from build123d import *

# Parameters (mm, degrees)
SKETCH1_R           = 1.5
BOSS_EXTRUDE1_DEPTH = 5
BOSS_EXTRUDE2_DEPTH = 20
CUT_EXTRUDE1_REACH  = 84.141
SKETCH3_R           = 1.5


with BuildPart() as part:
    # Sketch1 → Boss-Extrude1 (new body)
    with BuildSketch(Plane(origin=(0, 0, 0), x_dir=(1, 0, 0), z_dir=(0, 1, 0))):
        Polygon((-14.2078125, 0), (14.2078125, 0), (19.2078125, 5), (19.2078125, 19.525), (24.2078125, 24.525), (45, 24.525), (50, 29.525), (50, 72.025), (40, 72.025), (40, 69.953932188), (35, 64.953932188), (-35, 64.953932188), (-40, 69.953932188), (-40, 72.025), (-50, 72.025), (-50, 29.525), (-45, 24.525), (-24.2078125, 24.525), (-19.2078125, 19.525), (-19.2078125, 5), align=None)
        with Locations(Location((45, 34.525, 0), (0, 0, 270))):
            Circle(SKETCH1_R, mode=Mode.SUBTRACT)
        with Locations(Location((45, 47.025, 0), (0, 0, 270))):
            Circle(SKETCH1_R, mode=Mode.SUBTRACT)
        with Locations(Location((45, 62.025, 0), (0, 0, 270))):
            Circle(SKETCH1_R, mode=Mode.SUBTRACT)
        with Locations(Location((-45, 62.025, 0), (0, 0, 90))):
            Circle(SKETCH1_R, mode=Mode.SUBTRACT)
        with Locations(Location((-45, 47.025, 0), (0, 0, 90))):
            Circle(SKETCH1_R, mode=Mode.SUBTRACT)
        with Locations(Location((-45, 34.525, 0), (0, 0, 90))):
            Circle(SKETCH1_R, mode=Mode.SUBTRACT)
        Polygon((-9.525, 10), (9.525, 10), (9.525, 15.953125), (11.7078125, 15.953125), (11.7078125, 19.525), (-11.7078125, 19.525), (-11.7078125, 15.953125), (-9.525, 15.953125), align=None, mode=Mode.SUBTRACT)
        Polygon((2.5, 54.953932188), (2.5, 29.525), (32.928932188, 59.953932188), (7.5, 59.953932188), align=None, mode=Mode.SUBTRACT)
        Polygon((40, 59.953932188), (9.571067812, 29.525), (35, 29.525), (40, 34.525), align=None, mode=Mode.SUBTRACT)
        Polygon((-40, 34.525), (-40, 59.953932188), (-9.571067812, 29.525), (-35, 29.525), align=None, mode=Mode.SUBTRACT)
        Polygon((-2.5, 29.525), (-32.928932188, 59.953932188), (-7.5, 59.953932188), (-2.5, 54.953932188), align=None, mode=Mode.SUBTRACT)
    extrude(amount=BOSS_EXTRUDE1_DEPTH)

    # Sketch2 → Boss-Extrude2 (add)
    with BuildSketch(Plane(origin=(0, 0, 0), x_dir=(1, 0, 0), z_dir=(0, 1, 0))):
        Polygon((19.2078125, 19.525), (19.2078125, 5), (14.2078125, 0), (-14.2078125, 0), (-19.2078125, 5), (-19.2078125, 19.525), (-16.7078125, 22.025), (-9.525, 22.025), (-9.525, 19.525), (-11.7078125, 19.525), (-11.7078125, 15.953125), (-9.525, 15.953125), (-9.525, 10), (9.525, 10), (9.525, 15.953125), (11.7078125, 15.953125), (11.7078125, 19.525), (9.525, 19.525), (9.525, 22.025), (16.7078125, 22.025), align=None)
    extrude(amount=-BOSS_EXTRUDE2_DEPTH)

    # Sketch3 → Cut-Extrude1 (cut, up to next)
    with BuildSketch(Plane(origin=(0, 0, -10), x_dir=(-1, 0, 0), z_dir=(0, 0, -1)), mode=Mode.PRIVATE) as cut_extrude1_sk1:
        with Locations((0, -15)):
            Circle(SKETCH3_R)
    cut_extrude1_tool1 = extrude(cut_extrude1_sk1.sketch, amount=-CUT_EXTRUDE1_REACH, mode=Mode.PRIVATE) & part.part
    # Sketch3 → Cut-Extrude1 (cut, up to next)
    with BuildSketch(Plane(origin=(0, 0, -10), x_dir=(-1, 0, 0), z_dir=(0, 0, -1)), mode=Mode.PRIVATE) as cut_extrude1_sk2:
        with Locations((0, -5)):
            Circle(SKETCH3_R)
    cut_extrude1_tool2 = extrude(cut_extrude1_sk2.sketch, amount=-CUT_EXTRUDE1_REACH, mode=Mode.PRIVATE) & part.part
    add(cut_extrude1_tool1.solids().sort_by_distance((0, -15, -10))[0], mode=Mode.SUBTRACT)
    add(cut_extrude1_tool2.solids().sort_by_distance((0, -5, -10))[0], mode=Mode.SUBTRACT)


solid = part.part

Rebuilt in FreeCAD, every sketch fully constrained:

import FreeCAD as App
import Part
import Sketcher


def add_polygon(sketch, points):
    """Adds a closed chain of lines whose ends are joined by coincident constraints."""
    first, n = sketch.GeometryCount, len(points)
    for a, b in zip(points, points[1:] + points[:1]):
        sketch.addGeometry(Part.LineSegment(App.Vector(*a, 0), App.Vector(*b, 0)), False)
    for i in range(n):
        sketch.addConstraint(Sketcher.Constraint("Coincident", first + i, 2, first + (i + 1) % n, 1))

doc = App.newDocument("Part")
body = doc.addObject("PartDesign::Body", "Body")

sketch1 = body.newObject("Sketcher::SketchObject", "Sketch")
sketch1.AttachmentSupport = (doc.getObject("XZ_Plane"), [""])
sketch1.MapMode = "FlatFace"
add_polygon(sketch1, [(-14.2, 0), (14.2, 0), (19.2, -5), (19.2, -19.5), (24.2, -24.5), (45, -24.5), (50, -29.5), (50, -72), (40, -72), (40, -70), (35, -65), (-35, -65), (-40, -70), (-40, -72), (-50, -72), (-50, -29.5), (-45, -24.5), (-24.2, -24.5), (-19.2, -19.5), (-19.2, -5)])
sketch1.addGeometry(Part.Circle(App.Vector(-45, -34.5, 0), App.Vector(0, 0, 1), 1.5), False)
add_polygon(sketch1, [(9.5, -10), (-9.5, -10), (-9.5, -16), (-11.7, -16), (-11.7, -19.5), (11.7, -19.5), (11.7, -16), (9.5, -16)])
sketch1.addGeometry(Part.Circle(App.Vector(45, -34.5, 0), App.Vector(0, 0, 1), 1.5), False)
sketch1.addGeometry(Part.Circle(App.Vector(-45, -47, 0), App.Vector(0, 0, 1), 1.5), False)
add_polygon(sketch1, [(-35, -29.5), (-40, -34.5), (-40, -60), (-9.6, -29.5)])
add_polygon(sketch1, [(-2.5, -55), (-2.5, -29.5), (-32.9, -60), (-7.5, -60)])
sketch1.addGeometry(Part.Circle(App.Vector(-45, -62, 0), App.Vector(0, 0, 1), 1.5), False)
add_polygon(sketch1, [(2.5, -29.5), (2.5, -55), (7.5, -60), (32.9, -60)])
add_polygon(sketch1, [(9.6, -29.5), (40, -60), (40, -34.5), (35, -29.5)])
sketch1.addGeometry(Part.Circle(App.Vector(45, -47, 0), App.Vector(0, 0, 1), 1.5), False)
sketch1.addGeometry(Part.Circle(App.Vector(45, -62, 0), App.Vector(0, 0, 1), 1.5), False)
sketch1.addConstraint(Sketcher.Constraint("Horizontal", 0))
sketch1.addConstraint(Sketcher.Constraint("Vertical", 2))
sketch1.addConstraint(Sketcher.Constraint("Horizontal", 4))
sketch1.addConstraint(Sketcher.Constraint("Vertical", 6))
sketch1.addConstraint(Sketcher.Constraint("Horizontal", 7))
sketch1.addConstraint(Sketcher.Constraint("Vertical", 8))
sketch1.addConstraint(Sketcher.Constraint("Horizontal", 10))
sketch1.addConstraint(Sketcher.Constraint("Vertical", 12))
sketch1.addConstraint(Sketcher.Constraint("Horizontal", 13))
sketch1.addConstraint(Sketcher.Constraint("Vertical", 14))
sketch1.addConstraint(Sketcher.Constraint("Horizontal", 16))
sketch1.addConstraint(Sketcher.Constraint("Vertical", 18))
sketch1.addConstraint(Sketcher.Constraint("Horizontal", 21))
sketch1.addConstraint(Sketcher.Constraint("Vertical", 22))
sketch1.addConstraint(Sketcher.Constraint("Horizontal", 23))
sketch1.addConstraint(Sketcher.Constraint("Vertical", 24))
sketch1.addConstraint(Sketcher.Constraint("Horizontal", 25))
sketch1.addConstraint(Sketcher.Constraint("Vertical", 26))
sketch1.addConstraint(Sketcher.Constraint("Horizontal", 27))
sketch1.addConstraint(Sketcher.Constraint("Vertical", 28))
sketch1.addConstraint(Sketcher.Constraint("Vertical", 32))
sketch1.addConstraint(Sketcher.Constraint("Horizontal", 34))
sketch1.addConstraint(Sketcher.Constraint("Vertical", 35))
sketch1.addConstraint(Sketcher.Constraint("Horizontal", 37))
sketch1.addConstraint(Sketcher.Constraint("Vertical", 40))
sketch1.addConstraint(Sketcher.Constraint("Horizontal", 42))
sketch1.addConstraint(Sketcher.Constraint("Vertical", 45))
sketch1.addConstraint(Sketcher.Constraint("Horizontal", 47))
sketch1.addConstraint(Sketcher.Constraint("Equal", 20, 29))
sketch1.addConstraint(Sketcher.Constraint("Equal", 29, 30))
sketch1.addConstraint(Sketcher.Constraint("Equal", 30, 39))
sketch1.addConstraint(Sketcher.Constraint("Equal", 39, 48))
sketch1.addConstraint(Sketcher.Constraint("Equal", 48, 49))
sketch1.addConstraint(Sketcher.Constraint("Symmetric", 0, 2, 19, 2, -1, 1))
sketch1.addConstraint(Sketcher.Constraint("Symmetric", 20, 3, 29, 3, -2))
sketch1.addConstraint(Sketcher.Constraint("Symmetric", 30, 3, 48, 3, -2))
sketch1.addConstraint(Sketcher.Constraint("Symmetric", 39, 3, 49, 3, -2))
sketch1.addConstraint(Sketcher.Constraint("Symmetric", 8, 2, 11, 2, -2))
sketch1.addConstraint(Sketcher.Constraint("Symmetric", 6, 2, 13, 2, -2))
sketch1.addConstraint(Sketcher.Constraint("Symmetric", 4, 2, 15, 2, -2))
sketch1.addConstraint(Sketcher.Constraint("Symmetric", 2, 2, 17, 2, -2))
sketch1.addConstraint(Sketcher.Constraint("Symmetric", 23, 2, 26, 2, -2))
sketch1.addConstraint(Sketcher.Constraint("Symmetric", 38, 2, 40, 2, -2))
sketch1.addConstraint(Sketcher.Constraint("Symmetric", 37, 2, 41, 2, -2))
sketch1.addConstraint(Sketcher.Constraint("Symmetric", 32, 2, 44, 2, -2))
sketch1.addConstraint(Sketcher.Constraint("Symmetric", 34, 2, 46, 2, -2))
sketch1.addConstraint(Sketcher.Constraint("Parallel", 1, 3))
sketch1.addConstraint(Sketcher.Constraint("Parallel", 3, 5))
sketch1.addConstraint(Sketcher.Constraint("Parallel", 5, 9))
sketch1.addConstraint(Sketcher.Constraint("Perpendicular", 9, 11))
sketch1.addConstraint(Sketcher.Constraint("Parallel", 11, 15))
sketch1.addConstraint(Sketcher.Constraint("Parallel", 15, 17))
sketch1.addConstraint(Sketcher.Constraint("Parallel", 17, 19))
sketch1.addConstraint(Sketcher.Constraint("Parallel", 19, 31))
sketch1.addConstraint(Sketcher.Constraint("Parallel", 31, 33))
sketch1.addConstraint(Sketcher.Constraint("Parallel", 33, 36))
sketch1.addConstraint(Sketcher.Constraint("Parallel", 36, 38))
sketch1.addConstraint(Sketcher.Constraint("Perpendicular", 38, 41))
sketch1.addConstraint(Sketcher.Constraint("Parallel", 41, 43))
sketch1.addConstraint(Sketcher.Constraint("Parallel", 43, 44))
sketch1.addConstraint(Sketcher.Constraint("Parallel", 44, 46))
sketch1.addConstraint(Sketcher.Constraint("Horizontal", 17, 2, 24, 2))
sketch1.addConstraint(Sketcher.Constraint("Horizontal", 29, 3, 31, 2))
sketch1.addConstraint(Sketcher.Constraint("Horizontal", 14, 2, 33, 2))
sketch1.addConstraint(Sketcher.Constraint("Horizontal", 34, 2, 35, 2))
sketch1.addConstraint(Sketcher.Constraint("Horizontal", 32, 2, 36, 2))
sketch1.addConstraint(Sketcher.Constraint("Horizontal", 35, 2, 43, 2))
sketch1.addConstraint(Sketcher.Constraint("Vertical", 20, 3, 30, 3))
sketch1.addConstraint(Sketcher.Constraint("Vertical", 30, 3, 39, 3))
sketch1.addConstraint(Sketcher.Constraint("Vertical", 49, 3, 4, 2))
sketch1.addConstraint(Sketcher.Constraint("Vertical", 12, 2, 31, 2))
sketch1.addConstraint(Sketcher.Constraint("Vertical", 10, 2, 34, 2))
sketch1.addConstraint(Sketcher.Constraint("Equal", 23, 27))
sketch1.addConstraint(Sketcher.Constraint("Equal", 34, 37))
sketch1.addConstraint(Sketcher.Constraint("Equal", 1, 3))
sketch1.addConstraint(Sketcher.Constraint("Equal", 3, 5))
sketch1.addConstraint(Sketcher.Constraint("Equal", 5, 9))
sketch1.addConstraint(Sketcher.Constraint("Diameter", 20, 3.0))
sketch1.addConstraint(Sketcher.Constraint("DistanceX", 7, 2, 7, 1, 10.0))
sketch1.addConstraint(Sketcher.Constraint("DistanceX", 10, 2, 10, 1, 70.0))
sketch1.addConstraint(Sketcher.Constraint("DistanceY", 6, 2, 6, 1, 42.5))
sketch1.addConstraint(Sketcher.Constraint("DistanceY", 1, 2, -1, 1, 5.0))
sketch1.addConstraint(Sketcher.Constraint("DistanceY", 21, 2, -1, 1, 10.0))
sketch1.addConstraint(Sketcher.Constraint("DistanceY", 39, 3, 30, 3, 15.0))
sketch1.addConstraint(Sketcher.Constraint("DistanceY", 6, 2, 49, 3, 10.0))
sketch1.addConstraint(Sketcher.Constraint("DistanceY", 10, 2, 32, 2, 5.0))
sketch1.addConstraint(Sketcher.Constraint("DistanceX", 38, 2, 40, 2, 5.0))
sketch1.addConstraint(Sketcher.Constraint("DistanceX", 21, 2, 21, 1, 19.05))
sketch1.addConstraint(Sketcher.Constraint("DistanceX", 17, 2, 23, 2, 7.5))
sketch1.addConstraint(Sketcher.Constraint("DistanceY", 2, 2, 2, 1, 14.525))
sketch1.addConstraint(Sketcher.Constraint("Distance", 33, 43.033009))
sketch1.addConstraint(Sketcher.Constraint("DistanceX", 0, 1, 0, 2, 28.415625))
sketch1.addConstraint(Sketcher.Constraint("DistanceY", 22, 2, 22, 1, 5.953125))
pad1 = body.newObject("PartDesign::Pad", "Pad")
pad1.Profile = sketch1
pad1.Length = 5
pad1.Reversed = True

sketch2 = body.newObject("Sketcher::SketchObject", "Sketch001")
sketch2.AttachmentSupport = (doc.getObject("XZ_Plane"), [""])
sketch2.MapMode = "FlatFace"
add_polygon(sketch2, [(19.2, -5), (19.2, -19.5), (16.7, -22), (9.5, -22), (9.5, -19.5), (11.7, -19.5), (11.7, -16), (9.5, -16), (9.5, -10), (-9.5, -10), (-9.5, -16), (-11.7, -16), (-11.7, -19.5), (-9.5, -19.5), (-9.5, -22), (-16.7, -22), (-19.2, -19.5), (-19.2, -5), (-14.2, 0), (14.2, 0)])
sketch2.addConstraint(Sketcher.Constraint("Vertical", 0))
sketch2.addConstraint(Sketcher.Constraint("Horizontal", 2))
sketch2.addConstraint(Sketcher.Constraint("Vertical", 3))
sketch2.addConstraint(Sketcher.Constraint("Horizontal", 4))
sketch2.addConstraint(Sketcher.Constraint("Vertical", 5))
sketch2.addConstraint(Sketcher.Constraint("Horizontal", 6))
sketch2.addConstraint(Sketcher.Constraint("Vertical", 7))
sketch2.addConstraint(Sketcher.Constraint("Horizontal", 8))
sketch2.addConstraint(Sketcher.Constraint("Vertical", 9))
sketch2.addConstraint(Sketcher.Constraint("Horizontal", 10))
sketch2.addConstraint(Sketcher.Constraint("Vertical", 11))
sketch2.addConstraint(Sketcher.Constraint("Horizontal", 12))
sketch2.addConstraint(Sketcher.Constraint("Vertical", 13))
sketch2.addConstraint(Sketcher.Constraint("Horizontal", 14))
sketch2.addConstraint(Sketcher.Constraint("Vertical", 16))
sketch2.addConstraint(Sketcher.Constraint("Horizontal", 18))
sketch2.addConstraint(Sketcher.Constraint("Symmetric", 17, 2, 18, 2, -1, 1))
sketch2.addConstraint(Sketcher.Constraint("Symmetric", 6, 2, 9, 2, -2))
sketch2.addConstraint(Sketcher.Constraint("Symmetric", 4, 2, 11, 2, -2))
sketch2.addConstraint(Sketcher.Constraint("Symmetric", 2, 2, 13, 2, -2))
sketch2.addConstraint(Sketcher.Constraint("Symmetric", 0, 2, 15, 2, -2))
sketch2.addConstraint(Sketcher.Constraint("Perpendicular", 1, 15))
sketch2.addConstraint(Sketcher.Constraint("Perpendicular", 15, 17))
sketch2.addConstraint(Sketcher.Constraint("Perpendicular", 17, 19))
sketch2.addConstraint(Sketcher.Constraint("Horizontal", 0, 2, 3, 2))
sketch2.addConstraint(Sketcher.Constraint("Horizontal", 16, 2, 19, 2))
sketch2.addConstraint(Sketcher.Constraint("Vertical", 3, 2, 6, 2))
sketch2.addConstraint(Sketcher.Constraint("DistanceY", 3, 1, 3, 2, 2.5))
sketch2.addConstraint(Sketcher.Constraint("DistanceY", 7, 2, -1, 1, 10.0))
sketch2.addConstraint(Sketcher.Constraint("DistanceY", 16, 2, -1, 1, 5.0))
sketch2.addConstraint(Sketcher.Constraint("DistanceX", 4, 2, 1, 2, 5.0))
sketch2.addConstraint(Sketcher.Constraint("DistanceX", 8, 2, 8, 1, 19.05))
sketch2.addConstraint(Sketcher.Constraint("DistanceY", 0, 2, 0, 1, 14.525))
sketch2.addConstraint(Sketcher.Constraint("DistanceX", 2, 2, 2, 1, 7.182812))
sketch2.addConstraint(Sketcher.Constraint("DistanceY", 5, 1, 5, 2, 3.571875))
pad2 = body.newObject("PartDesign::Pad", "Pad001")
pad2.Profile = sketch2
pad2.Length = 20

sketch3 = body.newObject("Sketcher::SketchObject", "Sketch002")
sketch3.AttachmentSupport = (doc.getObject("XY_Plane"), [""])
sketch3.MapMode = "FlatFace"
sketch3.AttachmentOffset = App.Placement(App.Vector(0, 0, -10), App.Rotation())
sketch3.addGeometry(Part.Circle(App.Vector(0, -15, 0), App.Vector(0, 0, 1), 1.5), False)
sketch3.addConstraint(Sketcher.Constraint("PointOnObject", 0, 3, -2))
sketch3.addConstraint(Sketcher.Constraint("Diameter", 0, 3.0))
sketch3.addConstraint(Sketcher.Constraint("DistanceY", 0, 3, -1, 1, 15.0))
pocket1 = body.newObject("PartDesign::Pocket", "Pocket")
pocket1.Profile = sketch3
pocket1.Type = "UpToFirst"
pocket1.Reversed = True

sketch4 = body.newObject("Sketcher::SketchObject", "Sketch003")
sketch4.AttachmentSupport = (doc.getObject("XY_Plane"), [""])
sketch4.MapMode = "FlatFace"
sketch4.AttachmentOffset = App.Placement(App.Vector(0, 0, -10), App.Rotation())
sketch4.addGeometry(Part.Circle(App.Vector(0, -5, 0), App.Vector(0, 0, 1), 1.5), False)
sketch4.addConstraint(Sketcher.Constraint("PointOnObject", 0, 3, -2))
sketch4.addConstraint(Sketcher.Constraint("Diameter", 0, 3.0))
sketch4.addConstraint(Sketcher.Constraint("DistanceY", 0, 3, -1, 1, 5.0))
pocket2 = body.newObject("PartDesign::Pocket", "Pocket001")
pocket2.Profile = sketch4
pocket2.Type = "UpToFirst"
pocket2.Reversed = True

doc.recompute()
